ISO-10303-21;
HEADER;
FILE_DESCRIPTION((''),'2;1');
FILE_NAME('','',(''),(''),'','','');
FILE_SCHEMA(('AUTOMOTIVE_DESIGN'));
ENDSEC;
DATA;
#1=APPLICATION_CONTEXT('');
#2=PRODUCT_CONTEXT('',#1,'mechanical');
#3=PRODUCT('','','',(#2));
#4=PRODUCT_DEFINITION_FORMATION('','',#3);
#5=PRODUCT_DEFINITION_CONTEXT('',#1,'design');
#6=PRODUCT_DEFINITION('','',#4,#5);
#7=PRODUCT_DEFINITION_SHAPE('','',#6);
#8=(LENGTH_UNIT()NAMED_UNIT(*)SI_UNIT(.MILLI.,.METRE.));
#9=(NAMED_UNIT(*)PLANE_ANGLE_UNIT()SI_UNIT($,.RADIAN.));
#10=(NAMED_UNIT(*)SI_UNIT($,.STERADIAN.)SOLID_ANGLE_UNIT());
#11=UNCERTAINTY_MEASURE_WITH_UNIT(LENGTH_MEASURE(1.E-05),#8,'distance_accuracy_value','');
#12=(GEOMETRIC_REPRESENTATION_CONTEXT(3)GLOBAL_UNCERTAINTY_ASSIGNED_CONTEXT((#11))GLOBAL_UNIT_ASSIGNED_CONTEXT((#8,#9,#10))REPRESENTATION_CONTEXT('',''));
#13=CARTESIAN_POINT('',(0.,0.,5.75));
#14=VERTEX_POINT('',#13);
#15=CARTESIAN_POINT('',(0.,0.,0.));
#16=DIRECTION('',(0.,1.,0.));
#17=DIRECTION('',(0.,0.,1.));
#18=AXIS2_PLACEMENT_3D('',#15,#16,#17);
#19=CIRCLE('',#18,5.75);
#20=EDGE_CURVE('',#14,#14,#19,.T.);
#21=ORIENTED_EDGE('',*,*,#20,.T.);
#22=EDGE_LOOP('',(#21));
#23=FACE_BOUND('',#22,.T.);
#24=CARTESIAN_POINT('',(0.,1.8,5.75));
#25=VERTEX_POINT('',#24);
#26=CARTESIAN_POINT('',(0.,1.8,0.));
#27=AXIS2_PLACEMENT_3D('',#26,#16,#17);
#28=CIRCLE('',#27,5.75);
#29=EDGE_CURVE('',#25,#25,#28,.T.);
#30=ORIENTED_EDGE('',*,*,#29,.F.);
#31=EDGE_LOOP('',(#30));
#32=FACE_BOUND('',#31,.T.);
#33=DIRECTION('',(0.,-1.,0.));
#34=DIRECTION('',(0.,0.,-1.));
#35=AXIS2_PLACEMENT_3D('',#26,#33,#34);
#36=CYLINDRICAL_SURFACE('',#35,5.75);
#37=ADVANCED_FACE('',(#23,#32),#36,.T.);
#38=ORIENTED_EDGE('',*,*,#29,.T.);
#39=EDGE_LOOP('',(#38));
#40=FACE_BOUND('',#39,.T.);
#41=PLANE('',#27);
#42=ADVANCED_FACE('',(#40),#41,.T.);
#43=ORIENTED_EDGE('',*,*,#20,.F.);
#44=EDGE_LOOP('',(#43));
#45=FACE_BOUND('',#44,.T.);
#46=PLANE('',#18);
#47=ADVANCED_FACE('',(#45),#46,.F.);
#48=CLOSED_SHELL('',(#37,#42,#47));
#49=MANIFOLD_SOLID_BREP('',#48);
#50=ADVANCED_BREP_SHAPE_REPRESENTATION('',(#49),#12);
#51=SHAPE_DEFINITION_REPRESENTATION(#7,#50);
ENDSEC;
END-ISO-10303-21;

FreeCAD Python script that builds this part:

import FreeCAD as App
import Part
import Sketcher
from FreeCAD import Vector

doc = App.newDocument("Part")
body = doc.addObject("PartDesign::Body", "Body")

# Sketch on XZ plane
sketch1 = body.newObject("Sketcher::SketchObject", "Sketch")
sketch1.AttachmentSupport = (doc.getObject("XZ_Plane"), [""])
sketch1.MapMode = "FlatFace"
sketch1.addGeometry(Part.Circle(Vector(0, 0, 0), Vector(0, 0, 1), 6), False)
sketch1.addConstraint(Sketcher.Constraint("Coincident", 0, 3, -1, 1))
sketch1.addConstraint(Sketcher.Constraint("Diameter", 0, 11.5))
pad1 = body.newObject("PartDesign::Pad", "Pad")
pad1.Profile = sketch1
pad1.Length = 1.8
pad1.Reversed = True

doc.recompute()
